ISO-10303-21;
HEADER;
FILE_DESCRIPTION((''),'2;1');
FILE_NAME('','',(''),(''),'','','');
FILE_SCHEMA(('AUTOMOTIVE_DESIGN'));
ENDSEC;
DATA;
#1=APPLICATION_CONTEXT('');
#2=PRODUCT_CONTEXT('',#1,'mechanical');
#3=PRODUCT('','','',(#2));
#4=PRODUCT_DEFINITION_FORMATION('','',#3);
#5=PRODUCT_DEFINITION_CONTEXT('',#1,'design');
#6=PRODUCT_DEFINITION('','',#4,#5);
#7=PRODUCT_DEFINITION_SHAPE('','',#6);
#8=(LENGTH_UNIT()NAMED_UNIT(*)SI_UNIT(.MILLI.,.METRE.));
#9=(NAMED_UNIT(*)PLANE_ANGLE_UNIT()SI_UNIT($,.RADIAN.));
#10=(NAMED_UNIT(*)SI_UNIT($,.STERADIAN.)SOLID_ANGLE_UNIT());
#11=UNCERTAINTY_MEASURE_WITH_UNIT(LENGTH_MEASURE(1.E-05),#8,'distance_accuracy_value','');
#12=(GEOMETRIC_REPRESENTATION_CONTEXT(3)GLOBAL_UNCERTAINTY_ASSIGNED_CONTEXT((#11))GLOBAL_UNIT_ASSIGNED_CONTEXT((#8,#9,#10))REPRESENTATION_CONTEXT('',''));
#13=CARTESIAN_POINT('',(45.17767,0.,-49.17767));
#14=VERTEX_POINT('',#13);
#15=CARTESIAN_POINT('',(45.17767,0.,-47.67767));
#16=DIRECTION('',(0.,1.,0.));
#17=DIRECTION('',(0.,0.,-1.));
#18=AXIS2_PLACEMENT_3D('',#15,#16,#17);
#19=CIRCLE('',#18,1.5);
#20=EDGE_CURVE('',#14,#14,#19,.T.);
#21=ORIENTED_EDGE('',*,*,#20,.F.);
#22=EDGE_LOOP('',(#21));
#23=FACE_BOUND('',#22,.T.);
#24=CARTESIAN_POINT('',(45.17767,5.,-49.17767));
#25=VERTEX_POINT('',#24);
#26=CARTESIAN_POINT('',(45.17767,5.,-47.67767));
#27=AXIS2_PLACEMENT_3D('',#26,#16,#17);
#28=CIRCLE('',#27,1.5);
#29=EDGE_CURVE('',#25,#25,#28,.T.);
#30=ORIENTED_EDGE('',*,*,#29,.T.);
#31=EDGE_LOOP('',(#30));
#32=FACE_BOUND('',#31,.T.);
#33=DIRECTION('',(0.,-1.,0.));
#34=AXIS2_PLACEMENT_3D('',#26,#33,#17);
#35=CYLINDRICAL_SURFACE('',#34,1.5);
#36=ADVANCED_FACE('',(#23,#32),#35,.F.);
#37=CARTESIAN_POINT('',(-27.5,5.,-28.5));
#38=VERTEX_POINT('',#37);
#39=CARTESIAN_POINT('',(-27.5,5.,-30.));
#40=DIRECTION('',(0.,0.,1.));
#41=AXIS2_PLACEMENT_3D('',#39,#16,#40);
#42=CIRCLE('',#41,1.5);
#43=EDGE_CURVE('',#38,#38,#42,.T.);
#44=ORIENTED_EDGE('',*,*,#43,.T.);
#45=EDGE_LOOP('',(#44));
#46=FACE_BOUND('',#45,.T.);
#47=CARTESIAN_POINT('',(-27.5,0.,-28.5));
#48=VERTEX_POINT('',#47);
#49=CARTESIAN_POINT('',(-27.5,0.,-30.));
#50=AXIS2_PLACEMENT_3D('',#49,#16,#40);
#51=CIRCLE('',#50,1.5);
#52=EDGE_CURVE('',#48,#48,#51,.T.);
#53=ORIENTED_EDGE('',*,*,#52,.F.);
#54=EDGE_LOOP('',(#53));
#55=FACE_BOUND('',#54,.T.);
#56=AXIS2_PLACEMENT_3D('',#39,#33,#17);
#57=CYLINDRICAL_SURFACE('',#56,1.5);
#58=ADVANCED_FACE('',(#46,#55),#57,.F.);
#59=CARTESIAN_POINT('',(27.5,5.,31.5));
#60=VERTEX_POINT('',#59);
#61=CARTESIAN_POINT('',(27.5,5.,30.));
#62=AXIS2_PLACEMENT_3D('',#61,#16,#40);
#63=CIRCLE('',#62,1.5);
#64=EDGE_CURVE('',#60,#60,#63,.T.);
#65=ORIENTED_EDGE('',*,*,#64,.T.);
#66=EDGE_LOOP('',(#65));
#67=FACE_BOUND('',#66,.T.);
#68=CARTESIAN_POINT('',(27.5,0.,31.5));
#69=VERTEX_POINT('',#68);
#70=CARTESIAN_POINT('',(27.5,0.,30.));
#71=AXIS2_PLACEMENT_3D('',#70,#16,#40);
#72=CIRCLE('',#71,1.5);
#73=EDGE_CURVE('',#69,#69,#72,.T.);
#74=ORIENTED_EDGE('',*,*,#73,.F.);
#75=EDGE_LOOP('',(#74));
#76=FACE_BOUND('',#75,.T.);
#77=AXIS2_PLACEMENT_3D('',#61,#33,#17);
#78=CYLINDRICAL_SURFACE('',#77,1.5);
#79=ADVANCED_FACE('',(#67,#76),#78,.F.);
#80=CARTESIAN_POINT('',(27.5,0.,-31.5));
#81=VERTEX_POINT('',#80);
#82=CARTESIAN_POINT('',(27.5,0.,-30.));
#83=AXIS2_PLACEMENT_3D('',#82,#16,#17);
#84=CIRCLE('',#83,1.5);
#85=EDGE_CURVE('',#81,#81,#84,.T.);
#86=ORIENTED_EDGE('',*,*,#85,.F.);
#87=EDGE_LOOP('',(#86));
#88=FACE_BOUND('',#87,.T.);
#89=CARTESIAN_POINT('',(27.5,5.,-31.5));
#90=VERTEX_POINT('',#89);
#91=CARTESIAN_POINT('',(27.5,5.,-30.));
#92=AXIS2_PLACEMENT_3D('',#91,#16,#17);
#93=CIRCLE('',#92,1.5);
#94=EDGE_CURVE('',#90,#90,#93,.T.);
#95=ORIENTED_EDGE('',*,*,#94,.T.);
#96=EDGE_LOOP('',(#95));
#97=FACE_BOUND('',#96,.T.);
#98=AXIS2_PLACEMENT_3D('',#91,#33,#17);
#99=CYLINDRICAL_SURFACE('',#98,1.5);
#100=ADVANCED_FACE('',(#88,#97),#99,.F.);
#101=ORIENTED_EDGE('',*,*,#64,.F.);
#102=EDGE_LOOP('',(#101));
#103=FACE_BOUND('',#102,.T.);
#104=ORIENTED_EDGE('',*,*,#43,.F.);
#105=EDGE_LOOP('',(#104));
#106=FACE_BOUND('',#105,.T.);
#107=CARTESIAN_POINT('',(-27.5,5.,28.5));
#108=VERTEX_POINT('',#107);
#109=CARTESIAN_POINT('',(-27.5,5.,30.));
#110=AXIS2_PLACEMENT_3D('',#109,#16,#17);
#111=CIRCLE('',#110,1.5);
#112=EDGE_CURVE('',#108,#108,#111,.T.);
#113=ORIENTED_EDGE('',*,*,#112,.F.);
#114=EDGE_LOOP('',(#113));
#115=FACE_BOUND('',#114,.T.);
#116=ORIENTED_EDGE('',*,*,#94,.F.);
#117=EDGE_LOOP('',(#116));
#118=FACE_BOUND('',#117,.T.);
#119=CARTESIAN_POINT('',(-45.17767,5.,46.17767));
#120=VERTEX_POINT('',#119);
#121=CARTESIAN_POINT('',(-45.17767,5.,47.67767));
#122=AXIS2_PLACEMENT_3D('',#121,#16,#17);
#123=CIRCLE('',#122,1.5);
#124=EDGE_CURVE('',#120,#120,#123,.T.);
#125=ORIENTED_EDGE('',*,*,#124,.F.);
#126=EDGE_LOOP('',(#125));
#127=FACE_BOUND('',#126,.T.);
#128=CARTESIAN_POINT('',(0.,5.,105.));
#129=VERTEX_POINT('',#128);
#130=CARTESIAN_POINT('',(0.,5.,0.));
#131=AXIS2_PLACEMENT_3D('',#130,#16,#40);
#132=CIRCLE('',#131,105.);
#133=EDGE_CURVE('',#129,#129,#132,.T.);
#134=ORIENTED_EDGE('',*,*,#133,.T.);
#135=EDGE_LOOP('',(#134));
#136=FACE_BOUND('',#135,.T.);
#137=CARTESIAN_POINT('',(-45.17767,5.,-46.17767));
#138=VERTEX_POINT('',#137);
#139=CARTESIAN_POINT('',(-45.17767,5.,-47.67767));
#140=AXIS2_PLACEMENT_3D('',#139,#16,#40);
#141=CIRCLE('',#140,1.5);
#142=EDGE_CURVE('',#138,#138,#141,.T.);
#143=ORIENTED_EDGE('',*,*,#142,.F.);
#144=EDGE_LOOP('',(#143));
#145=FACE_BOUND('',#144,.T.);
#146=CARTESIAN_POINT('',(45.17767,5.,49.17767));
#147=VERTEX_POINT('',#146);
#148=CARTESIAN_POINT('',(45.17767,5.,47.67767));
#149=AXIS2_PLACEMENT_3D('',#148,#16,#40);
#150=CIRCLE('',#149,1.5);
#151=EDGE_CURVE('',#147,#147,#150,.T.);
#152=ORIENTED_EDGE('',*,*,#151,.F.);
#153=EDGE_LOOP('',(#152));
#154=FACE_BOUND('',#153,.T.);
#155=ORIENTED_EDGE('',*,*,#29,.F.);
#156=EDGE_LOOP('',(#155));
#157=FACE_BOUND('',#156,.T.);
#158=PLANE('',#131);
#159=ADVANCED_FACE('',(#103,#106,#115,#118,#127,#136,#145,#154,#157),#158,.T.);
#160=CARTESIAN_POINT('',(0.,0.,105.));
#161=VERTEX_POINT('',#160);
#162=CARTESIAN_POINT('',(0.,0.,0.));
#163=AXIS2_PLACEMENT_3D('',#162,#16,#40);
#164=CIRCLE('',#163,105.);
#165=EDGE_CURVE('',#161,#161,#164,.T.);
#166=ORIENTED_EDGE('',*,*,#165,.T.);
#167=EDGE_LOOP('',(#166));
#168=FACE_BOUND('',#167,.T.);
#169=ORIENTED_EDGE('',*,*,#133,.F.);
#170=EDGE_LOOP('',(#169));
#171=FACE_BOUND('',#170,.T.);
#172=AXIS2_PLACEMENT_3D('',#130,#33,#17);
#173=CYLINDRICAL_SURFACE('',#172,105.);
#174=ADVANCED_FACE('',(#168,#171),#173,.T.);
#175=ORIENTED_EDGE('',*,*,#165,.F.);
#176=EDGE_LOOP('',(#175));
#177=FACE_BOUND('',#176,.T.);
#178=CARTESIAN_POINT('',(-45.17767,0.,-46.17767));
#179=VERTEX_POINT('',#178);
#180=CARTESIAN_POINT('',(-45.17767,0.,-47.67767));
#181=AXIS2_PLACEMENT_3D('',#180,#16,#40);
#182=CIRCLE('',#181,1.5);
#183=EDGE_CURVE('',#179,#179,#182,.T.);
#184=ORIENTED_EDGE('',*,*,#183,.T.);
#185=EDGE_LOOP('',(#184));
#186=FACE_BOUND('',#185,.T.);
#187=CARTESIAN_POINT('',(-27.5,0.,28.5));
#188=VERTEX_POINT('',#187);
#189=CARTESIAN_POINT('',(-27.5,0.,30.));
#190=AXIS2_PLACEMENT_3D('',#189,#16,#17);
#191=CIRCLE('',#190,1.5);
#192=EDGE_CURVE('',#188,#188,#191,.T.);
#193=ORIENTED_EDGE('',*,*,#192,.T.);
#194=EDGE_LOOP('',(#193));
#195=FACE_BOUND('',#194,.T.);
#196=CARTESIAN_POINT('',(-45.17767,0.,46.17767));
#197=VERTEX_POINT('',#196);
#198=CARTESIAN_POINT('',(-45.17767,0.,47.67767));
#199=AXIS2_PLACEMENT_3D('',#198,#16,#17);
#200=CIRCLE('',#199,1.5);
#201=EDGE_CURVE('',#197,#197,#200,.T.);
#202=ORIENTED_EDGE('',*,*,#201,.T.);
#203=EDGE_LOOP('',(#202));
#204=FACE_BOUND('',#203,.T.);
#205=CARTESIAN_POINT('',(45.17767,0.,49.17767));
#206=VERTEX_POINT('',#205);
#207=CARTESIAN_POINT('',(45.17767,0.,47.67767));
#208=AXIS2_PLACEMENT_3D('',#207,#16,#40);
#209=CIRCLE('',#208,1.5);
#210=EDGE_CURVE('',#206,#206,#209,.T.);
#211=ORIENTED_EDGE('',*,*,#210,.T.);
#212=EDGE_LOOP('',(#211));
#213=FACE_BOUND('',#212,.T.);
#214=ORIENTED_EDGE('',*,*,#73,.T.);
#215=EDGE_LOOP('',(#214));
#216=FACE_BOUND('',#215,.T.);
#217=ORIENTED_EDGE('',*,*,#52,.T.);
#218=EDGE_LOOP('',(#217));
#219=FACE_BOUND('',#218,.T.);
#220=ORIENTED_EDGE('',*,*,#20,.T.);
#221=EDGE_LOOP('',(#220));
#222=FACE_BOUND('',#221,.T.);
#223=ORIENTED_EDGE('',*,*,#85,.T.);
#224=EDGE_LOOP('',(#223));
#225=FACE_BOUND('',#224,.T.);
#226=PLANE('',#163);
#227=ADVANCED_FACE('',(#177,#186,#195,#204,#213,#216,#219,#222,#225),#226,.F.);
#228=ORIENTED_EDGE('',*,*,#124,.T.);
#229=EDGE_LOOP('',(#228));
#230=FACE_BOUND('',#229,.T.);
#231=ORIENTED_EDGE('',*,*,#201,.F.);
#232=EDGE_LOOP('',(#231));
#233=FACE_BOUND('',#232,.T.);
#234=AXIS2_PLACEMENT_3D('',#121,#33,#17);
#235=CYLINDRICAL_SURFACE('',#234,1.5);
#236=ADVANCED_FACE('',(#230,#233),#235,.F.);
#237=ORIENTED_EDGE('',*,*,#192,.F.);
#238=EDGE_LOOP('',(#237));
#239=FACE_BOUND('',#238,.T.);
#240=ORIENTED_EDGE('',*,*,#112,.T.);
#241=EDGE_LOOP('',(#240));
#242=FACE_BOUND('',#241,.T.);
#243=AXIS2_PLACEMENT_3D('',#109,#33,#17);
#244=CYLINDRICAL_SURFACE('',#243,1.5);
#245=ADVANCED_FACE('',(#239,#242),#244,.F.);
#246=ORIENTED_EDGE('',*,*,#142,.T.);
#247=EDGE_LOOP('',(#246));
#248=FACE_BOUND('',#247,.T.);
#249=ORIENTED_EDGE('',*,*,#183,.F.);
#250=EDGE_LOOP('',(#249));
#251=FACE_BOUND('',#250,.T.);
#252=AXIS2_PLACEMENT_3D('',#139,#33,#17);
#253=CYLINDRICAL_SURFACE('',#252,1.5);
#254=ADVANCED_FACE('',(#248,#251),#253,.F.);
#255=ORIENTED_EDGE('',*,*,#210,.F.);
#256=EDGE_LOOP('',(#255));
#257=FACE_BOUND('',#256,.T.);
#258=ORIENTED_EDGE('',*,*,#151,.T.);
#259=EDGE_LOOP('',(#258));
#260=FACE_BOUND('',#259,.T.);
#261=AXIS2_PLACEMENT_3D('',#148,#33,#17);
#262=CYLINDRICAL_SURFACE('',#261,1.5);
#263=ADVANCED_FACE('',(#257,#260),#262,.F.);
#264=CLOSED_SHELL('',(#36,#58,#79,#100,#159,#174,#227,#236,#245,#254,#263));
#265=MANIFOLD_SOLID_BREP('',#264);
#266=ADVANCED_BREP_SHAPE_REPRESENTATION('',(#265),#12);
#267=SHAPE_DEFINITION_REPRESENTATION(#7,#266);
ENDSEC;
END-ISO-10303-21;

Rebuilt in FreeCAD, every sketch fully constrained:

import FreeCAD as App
import Part
import Sketcher

V = App.Vector

doc = App.newDocument("Part")
body = doc.addObject("PartDesign::Body", "Body")

# Sketch on XZ plane
sketch1 = doc.addObject("Sketcher::SketchObject", "Sketch")
body.addObject(sketch1)
sketch1.AttachmentSupport = (doc.XZ_Plane, [""])
sketch1.MapMode = "FlatFace"
sketch1.addGeometry([
    Part.Circle(V(0, 0, 0), V(0, 0, 1), 105),  # 0
    Part.Circle(V(-45.2, -47.7, 0), V(0, 0, 1), 1.5),  # 1
    Part.Circle(V(-27.5, -30, 0), V(0, 0, 1), 1.5),  # 2
    Part.Circle(V(-45.2, 47.7, 0), V(0, 0, 1), 1.5),  # 3
    Part.Circle(V(-27.5, 30, 0), V(0, 0, 1), 1.5),  # 4
    Part.Circle(V(27.5, -30, 0), V(0, 0, 1), 1.5),  # 5
    Part.Circle(V(45.2, -47.7, 0), V(0, 0, 1), 1.5),  # 6
    Part.Circle(V(27.5, 30, 0), V(0, 0, 1), 1.5),  # 7
    Part.Circle(V(45.2, 47.7, 0), V(0, 0, 1), 1.5),  # 8
], False)
sketch1.addConstraint([
    Sketcher.Constraint("Coincident", 0, 3, -1, 1),
    Sketcher.Constraint("Equal", 1, 2),
    Sketcher.Constraint("Equal", 2, 3),
    Sketcher.Constraint("Equal", 3, 4),
    Sketcher.Constraint("Equal", 4, 5),
    Sketcher.Constraint("Equal", 5, 6),
    Sketcher.Constraint("Equal", 6, 7),
    Sketcher.Constraint("Equal", 7, 8),
    Sketcher.Constraint("Symmetric", 4, 3, 5, 3, -1, 1),
    Sketcher.Constraint("Symmetric", 3, 3, 6, 3, -1, 1),
    Sketcher.Constraint("Symmetric", 2, 3, 7, 3, -1, 1),
    Sketcher.Constraint("Symmetric", 1, 3, 8, 3, -1, 1),
    Sketcher.Constraint("Symmetric", 2, 3, 5, 3, -2),
    Sketcher.Constraint("Symmetric", 1, 3, 6, 3, -2),
    Sketcher.Constraint("Diameter", 0, 210.0),
    Sketcher.Constraint("Diameter", 1, 3.0),
    Sketcher.Constraint("DistanceY", 2, 3, -1, 1, 30.0),
    Sketcher.Constraint("DistanceX", 2, 3, 5, 3, 55.0),
    Sketcher.Constraint("DistanceX", 1, 3, -1, 1, 45.17767),
    Sketcher.Constraint("DistanceY", 1, 3, -1, 1, 47.67767),
])
pad1 = doc.addObject("PartDesign::Pad", "Pad")
body.addObject(pad1)
pad1.Profile = sketch1
pad1.Length = 5
pad1.Reversed = True

doc.recompute()
